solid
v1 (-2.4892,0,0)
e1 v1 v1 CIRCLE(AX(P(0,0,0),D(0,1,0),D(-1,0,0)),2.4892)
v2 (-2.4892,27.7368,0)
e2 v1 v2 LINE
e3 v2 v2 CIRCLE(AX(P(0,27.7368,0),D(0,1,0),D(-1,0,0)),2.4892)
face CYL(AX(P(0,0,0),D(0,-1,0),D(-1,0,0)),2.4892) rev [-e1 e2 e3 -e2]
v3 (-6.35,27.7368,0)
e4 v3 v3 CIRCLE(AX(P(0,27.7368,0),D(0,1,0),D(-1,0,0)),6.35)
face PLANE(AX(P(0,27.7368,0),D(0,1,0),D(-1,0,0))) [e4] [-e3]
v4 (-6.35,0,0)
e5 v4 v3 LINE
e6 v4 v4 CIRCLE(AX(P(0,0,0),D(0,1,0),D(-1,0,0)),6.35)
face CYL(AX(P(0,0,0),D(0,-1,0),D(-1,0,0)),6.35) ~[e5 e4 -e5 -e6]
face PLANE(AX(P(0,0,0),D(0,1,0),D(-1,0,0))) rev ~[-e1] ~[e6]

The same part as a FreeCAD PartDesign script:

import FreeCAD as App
import Part
import Sketcher
from FreeCAD import Vector
Q = App.Units.Quantity

doc = App.newDocument("Part")
params = doc.addObject("Spreadsheet::Sheet", "Params")
for row, (alias, value) in enumerate([
    ("sketch1_diameter", "0.5 in"),
    ("sketch1_diameter2", "0.196 in"),
    ("pad1_length", "1.092 in"),
], start=1):
    params.set(f"A{row}", alias)
    params.set(f"B{row}", "=" + value)
    params.setAlias(f"B{row}", alias)

body = doc.addObject("PartDesign::Body", "Body")

# Sketch on XZ plane
sketch1 = body.newObject("Sketcher::SketchObject", "Sketch")
sketch1.AttachmentSupport = (doc.getObject("XZ_Plane"), [""])
sketch1.MapMode = "FlatFace"
sketch1.addGeometry([
    Part.Circle(Vector(0, 0, 0), Vector(0, 0, 1), 6.3),
    Part.Circle(Vector(0, 0, 0), Vector(0, 0, 1), 2.5),
], False)
sketch1.addConstraint([
    Sketcher.Constraint("Coincident", 0, 3, -1, 1),
    Sketcher.Constraint("Coincident", 1, 3, -1, 1),
    Sketcher.Constraint("Diameter", 0, Q("0.5 in")),
    Sketcher.Constraint("Diameter", 1, Q("0.196 in")),
])
sketch1.setExpression("Constraints[2]", "Params.sketch1_diameter")
sketch1.setExpression("Constraints[3]", "Params.sketch1_diameter2")
pad1 = body.newObject("PartDesign::Pad", "Pad")
pad1.Profile = sketch1
pad1.setExpression("Length", "Params.pad1_length")
pad1.Reversed = True

doc.recompute()
